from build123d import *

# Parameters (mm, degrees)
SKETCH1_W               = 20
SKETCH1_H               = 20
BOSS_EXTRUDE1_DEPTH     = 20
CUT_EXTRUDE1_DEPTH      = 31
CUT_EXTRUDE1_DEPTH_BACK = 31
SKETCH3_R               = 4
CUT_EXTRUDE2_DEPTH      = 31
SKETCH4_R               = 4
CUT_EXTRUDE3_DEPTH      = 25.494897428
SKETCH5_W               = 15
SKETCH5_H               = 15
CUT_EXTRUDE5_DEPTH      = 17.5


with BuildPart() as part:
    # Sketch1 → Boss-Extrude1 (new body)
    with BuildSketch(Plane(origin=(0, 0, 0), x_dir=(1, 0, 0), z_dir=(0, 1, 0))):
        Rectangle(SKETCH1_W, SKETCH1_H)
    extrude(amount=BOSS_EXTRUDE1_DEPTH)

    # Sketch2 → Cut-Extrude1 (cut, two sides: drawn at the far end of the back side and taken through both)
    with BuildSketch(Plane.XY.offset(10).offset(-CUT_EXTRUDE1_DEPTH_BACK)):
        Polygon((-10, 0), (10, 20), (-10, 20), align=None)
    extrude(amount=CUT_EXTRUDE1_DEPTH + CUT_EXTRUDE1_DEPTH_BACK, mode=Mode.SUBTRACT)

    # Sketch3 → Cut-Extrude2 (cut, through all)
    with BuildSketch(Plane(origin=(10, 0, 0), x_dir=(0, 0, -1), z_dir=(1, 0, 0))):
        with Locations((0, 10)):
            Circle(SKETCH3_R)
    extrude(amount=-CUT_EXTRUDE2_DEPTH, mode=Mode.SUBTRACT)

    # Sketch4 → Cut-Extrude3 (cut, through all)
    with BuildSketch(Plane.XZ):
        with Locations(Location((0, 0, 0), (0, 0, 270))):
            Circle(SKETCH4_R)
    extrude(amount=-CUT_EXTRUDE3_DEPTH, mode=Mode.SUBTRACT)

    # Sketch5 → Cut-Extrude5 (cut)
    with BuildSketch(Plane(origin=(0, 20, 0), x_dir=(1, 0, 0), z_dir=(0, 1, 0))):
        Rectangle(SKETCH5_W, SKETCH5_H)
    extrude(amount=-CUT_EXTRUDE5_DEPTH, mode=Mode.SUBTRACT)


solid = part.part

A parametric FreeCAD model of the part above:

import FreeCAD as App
import Part
import Sketcher

V = App.Vector
Q = App.Units.Quantity


def add_polygon(sketch, points):
    """Adds a closed chain of lines whose ends are joined by coincident constraints."""
    first, n = sketch.GeometryCount, len(points)
    for a, b in zip(points, points[1:] + points[:1]):
        sketch.addGeometry(Part.LineSegment(App.Vector(*a, 0), App.Vector(*b, 0)), False)
    for i in range(n):
        sketch.addConstraint(Sketcher.Constraint("Coincident", first + i, 2, first + (i + 1) % n, 1))

doc = App.newDocument("Part")
body = doc.addObject("PartDesign::Body", "Body")

# Sketch on XZ plane
sketch1 = body.newObject("Sketcher::SketchObject", "Sketch")
sketch1.AttachmentSupport = (doc.getObject("XZ_Plane"), [""])
sketch1.MapMode = "FlatFace"
add_polygon(sketch1, [(-10, -10), (-10, 10), (10, 10), (10, -10)])  # lines 0-3
sketch1.addConstraint([
    Sketcher.Constraint("Vertical", 0),
    Sketcher.Constraint("Horizontal", 1),
    Sketcher.Constraint("Vertical", 2),
    Sketcher.Constraint("Horizontal", 3),
    Sketcher.Constraint("Symmetric", 0, 2, 2, 2, -1, 1),
    Sketcher.Constraint("Equal", 3, 0),
    Sketcher.Constraint("DistanceX", 1, 1, 1, 2, Q("20 mm")),
])
pad1 = body.newObject("PartDesign::Pad", "Pad")
pad1.Profile = sketch1
pad1.Length = 20
pad1.Reversed = True

# Sketch on XY plane
sketch2 = body.newObject("Sketcher::SketchObject", "Sketch001")
sketch2.AttachmentSupport = (doc.getObject("XY_Plane"), [""])
sketch2.MapMode = "FlatFace"
sketch2.AttachmentOffset = App.Placement(V(0, 0, 10), App.Rotation())
add_polygon(sketch2, [(-10, 0), (10, 20), (-10, 20)])  # lines 0-2
sketch2.addConstraint([
    Sketcher.Constraint("Horizontal", 1),
    Sketcher.Constraint("Vertical", 2),
    Sketcher.Constraint("PointOnObject", 2, 2, -1),
    Sketcher.Constraint("Equal", 1, 2),
    Sketcher.Constraint("DistanceX", 1, 2, 1, 1, Q("20 mm")),
    Sketcher.Constraint("DistanceX", -1, 1, 0, 2, Q("10 mm")),
])
pocket1 = body.newObject("PartDesign::Pocket", "Pocket")
pocket1.Profile = sketch2
pocket1.Type = "ThroughAll"
pocket1.Midplane = True

# Sketch on YZ plane
sketch3 = body.newObject("Sketcher::SketchObject", "Sketch002")
sketch3.AttachmentSupport = (doc.getObject("YZ_Plane"), [""])
sketch3.MapMode = "FlatFace"
sketch3.AttachmentOffset = App.Placement(V(0, 0, 10), App.Rotation())
sketch3.addGeometry(Part.Circle(V(10, 0, 0), V(0, 0, 1), 4), False)
sketch3.addConstraint([
    Sketcher.Constraint("PointOnObject", 0, 3, -1),
    Sketcher.Constraint("Diameter", 0, Q("8 mm")),
    Sketcher.Constraint("DistanceX", -1, 1, 0, 3, Q("10 mm")),
])
pocket2 = body.newObject("PartDesign::Pocket", "Pocket001")
pocket2.Profile = sketch3
pocket2.Type = "ThroughAll"

# Sketch on XZ plane
sketch4 = body.newObject("Sketcher::SketchObject", "Sketch003")
sketch4.AttachmentSupport = (doc.getObject("XZ_Plane"), [""])
sketch4.MapMode = "FlatFace"
sketch4.addGeometry(Part.Circle(V(0, 0, 0), V(0, 0, 1), 4), False)
sketch4.addConstraint([
    Sketcher.Constraint("Coincident", 0, 3, -1, 1),
    Sketcher.Constraint("Diameter", 0, Q("8 mm")),
])
pocket3 = body.newObject("PartDesign::Pocket", "Pocket002")
pocket3.Profile = sketch4
pocket3.Type = "ThroughAll"

# Sketch on XZ plane
sketch5 = body.newObject("Sketcher::SketchObject", "Sketch004")
sketch5.AttachmentSupport = (doc.getObject("XZ_Plane"), [""])
sketch5.MapMode = "FlatFace"
sketch5.AttachmentOffset = App.Placement(V(0, 0, -20), App.Rotation())
add_polygon(sketch5, [(-7.5, -7.5), (-7.5, 7.5), (7.5, 7.5), (7.5, -7.5)])  # lines 0-3
sketch5.addConstraint([
    Sketcher.Constraint("Vertical", 0),
    Sketcher.Constraint("Horizontal", 1),
    Sketcher.Constraint("Vertical", 2),
    Sketcher.Constraint("Horizontal", 3),
    Sketcher.Constraint("Symmetric", 0, 2, 2, 2, -1, 1),
    Sketcher.Constraint("Equal", 3, 0),
    Sketcher.Constraint("DistanceX", 1, 1, 1, 2, Q("15 mm")),
])
pocket4 = body.newObject("PartDesign::Pocket", "Pocket003")
pocket4.Profile = sketch5
pocket4.Length = 17.5
pocket4.Reversed = True

doc.recompute()
